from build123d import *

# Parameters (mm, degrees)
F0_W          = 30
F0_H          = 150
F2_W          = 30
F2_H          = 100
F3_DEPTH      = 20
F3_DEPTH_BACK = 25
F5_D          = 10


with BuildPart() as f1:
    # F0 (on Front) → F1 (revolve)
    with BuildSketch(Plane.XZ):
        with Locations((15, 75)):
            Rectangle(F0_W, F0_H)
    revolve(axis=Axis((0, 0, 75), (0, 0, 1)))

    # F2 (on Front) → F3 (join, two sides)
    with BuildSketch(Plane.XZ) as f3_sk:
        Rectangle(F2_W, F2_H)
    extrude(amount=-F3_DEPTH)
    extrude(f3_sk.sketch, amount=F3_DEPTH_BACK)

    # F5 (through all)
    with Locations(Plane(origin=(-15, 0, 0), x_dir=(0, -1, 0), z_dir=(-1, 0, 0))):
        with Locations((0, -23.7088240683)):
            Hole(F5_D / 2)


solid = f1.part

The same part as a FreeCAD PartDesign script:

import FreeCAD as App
import Part
import Sketcher

V = App.Vector
Q = App.Units.Quantity

doc = App.newDocument("Part")
body = doc.addObject("PartDesign::Body", "Body")

sketch1 = doc.addObject("Sketcher::SketchObject", "Sketch")
body.addObject(sketch1)
sketch1.AttachmentSupport = (doc.XZ_Plane, [""])
sketch1.MapMode = "FlatFace"
sketch1.addGeometry(Part.LineSegment(V(0, 150, 0), V(0, 0, 0)), False)
sketch1.addGeometry(Part.LineSegment(V(0, 0, 0), V(30, 0, 0)), False)
sketch1.addGeometry(Part.LineSegment(V(30, 0, 0), V(30, 150, 0)), False)
sketch1.addGeometry(Part.LineSegment(V(30, 150, 0), V(0, 150, 0)), False)
sketch1.addConstraint(Sketcher.Constraint("Coincident", 0, 2, 1, 1))
sketch1.addConstraint(Sketcher.Constraint("Coincident", 1, 2, 2, 1))
sketch1.addConstraint(Sketcher.Constraint("Coincident", 2, 2, 3, 1))
sketch1.addConstraint(Sketcher.Constraint("Coincident", 3, 2, 0, 1))
sketch1.addConstraint(Sketcher.Constraint("Vertical", 0))
sketch1.addConstraint(Sketcher.Constraint("Horizontal", 1))
sketch1.addConstraint(Sketcher.Constraint("Vertical", 2))
sketch1.addConstraint(Sketcher.Constraint("Horizontal", 3))
sketch1.addConstraint(Sketcher.Constraint("Coincident", 0, 2, -1, 1))
sketch1.addConstraint(Sketcher.Constraint("DistanceX", 1, 1, 1, 2, Q("30 mm")))
sketch1.addConstraint(Sketcher.Constraint("DistanceY", 0, 2, 0, 1, Q("150 mm")))
revolution = doc.addObject("PartDesign::Revolution", "Revolution")
body.addObject(revolution)
revolution.Profile = sketch1
revolution.ReferenceAxis = (sketch1, ["V_Axis"])
revolution.Angle = 360

sketch2 = doc.addObject("Sketcher::SketchObject", "Sketch001")
body.addObject(sketch2)
sketch2.AttachmentSupport = (doc.XZ_Plane, [""])
sketch2.MapMode = "FlatFace"
sketch2.addGeometry(Part.LineSegment(V(-15, 50, 0), V(-15, -50, 0)), False)
sketch2.addGeometry(Part.LineSegment(V(-15, -50, 0), V(15, -50, 0)), False)
sketch2.addGeometry(Part.LineSegment(V(15, -50, 0), V(15, 50, 0)), False)
sketch2.addGeometry(Part.LineSegment(V(15, 50, 0), V(-15, 50, 0)), False)
sketch2.addConstraint(Sketcher.Constraint("Coincident", 0, 2, 1, 1))
sketch2.addConstraint(Sketcher.Constraint("Coincident", 1, 2, 2, 1))
sketch2.addConstraint(Sketcher.Constraint("Coincident", 2, 2, 3, 1))
sketch2.addConstraint(Sketcher.Constraint("Coincident", 3, 2, 0, 1))
sketch2.addConstraint(Sketcher.Constraint("Vertical", 0))
sketch2.addConstraint(Sketcher.Constraint("Horizontal", 1))
sketch2.addConstraint(Sketcher.Constraint("Vertical", 2))
sketch2.addConstraint(Sketcher.Constraint("Horizontal", 3))
sketch2.addConstraint(Sketcher.Constraint("Symmetric", 0, 2, 2, 2, -1, 1))
sketch2.addConstraint(Sketcher.Constraint("DistanceX", 1, 1, 1, 2, Q("30 mm")))
sketch2.addConstraint(Sketcher.Constraint("DistanceY", 0, 2, 0, 1, Q("100 mm")))
pad1 = doc.addObject("PartDesign::Pad", "Pad")
body.addObject(pad1)
pad1.Profile = sketch2
pad1.Type = "TwoLengths"
pad1.Length = 20
pad1.Length2 = 25
pad1.Reversed = True

sketch3 = doc.addObject("Sketcher::SketchObject", "Sketch002")
body.addObject(sketch3)
sketch3.AttachmentSupport = (doc.YZ_Plane, [""])
sketch3.MapMode = "FlatFace"
sketch3.AttachmentOffset = App.Placement(V(0, 0, -15), App.Rotation())
sketch3.addGeometry(Part.Circle(V(0, -23.708824, 0), V(0, 0, 1), 5), False)
sketch3.addConstraint(Sketcher.Constraint("PointOnObject", 0, 3, -2))
sketch3.addConstraint(Sketcher.Constraint("Diameter", 0, Q("10 mm")))
sketch3.addConstraint(Sketcher.Constraint("DistanceY", 0, 3, -1, 1, Q("23.708824 mm")))
doc.recompute()
hole = doc.addObject("PartDesign::Hole", "Hole")
body.addObject(hole)
hole.Profile = sketch3
hole.ThreadType = "None"
hole.Diameter = 10
hole.DepthType = "ThroughAll"
hole.Reversed = True

doc.recompute()
